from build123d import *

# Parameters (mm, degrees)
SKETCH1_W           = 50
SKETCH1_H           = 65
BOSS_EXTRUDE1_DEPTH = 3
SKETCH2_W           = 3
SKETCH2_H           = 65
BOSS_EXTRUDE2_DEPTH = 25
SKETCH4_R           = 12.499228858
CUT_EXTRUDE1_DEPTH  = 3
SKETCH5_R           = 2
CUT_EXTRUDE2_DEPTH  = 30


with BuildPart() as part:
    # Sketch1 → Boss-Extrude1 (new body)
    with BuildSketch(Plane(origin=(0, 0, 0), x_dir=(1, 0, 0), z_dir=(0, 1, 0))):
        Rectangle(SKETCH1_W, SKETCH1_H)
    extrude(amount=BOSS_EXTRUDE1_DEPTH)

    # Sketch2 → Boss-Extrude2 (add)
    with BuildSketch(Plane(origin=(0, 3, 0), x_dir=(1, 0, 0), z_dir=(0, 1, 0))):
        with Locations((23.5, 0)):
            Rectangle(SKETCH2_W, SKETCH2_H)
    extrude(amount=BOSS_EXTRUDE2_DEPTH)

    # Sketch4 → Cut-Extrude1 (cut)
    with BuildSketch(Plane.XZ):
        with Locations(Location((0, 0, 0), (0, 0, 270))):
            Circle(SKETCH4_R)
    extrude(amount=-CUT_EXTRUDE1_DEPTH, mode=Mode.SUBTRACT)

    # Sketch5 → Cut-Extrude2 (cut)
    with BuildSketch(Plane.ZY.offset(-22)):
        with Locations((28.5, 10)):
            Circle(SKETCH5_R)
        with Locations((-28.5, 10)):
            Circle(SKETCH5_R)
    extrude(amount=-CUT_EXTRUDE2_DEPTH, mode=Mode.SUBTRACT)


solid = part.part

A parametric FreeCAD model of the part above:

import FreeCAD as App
import Part
import Sketcher

V = App.Vector
Q = App.Units.Quantity

doc = App.newDocument("Part")
body = doc.addObject("PartDesign::Body", "Body")

sketch1 = body.newObject("Sketcher::SketchObject", "Sketch")
sketch1.AttachmentSupport = (doc.getObject("XZ_Plane"), [""])
sketch1.MapMode = "FlatFace"
sketch1.addGeometry([
    Part.LineSegment(V(-25, -32, 0), V(-25, 32, 0)),
    Part.LineSegment(V(-25, 32, 0), V(25, 32, 0)),
    Part.LineSegment(V(25, 32, 0), V(25, -32, 0)),
    Part.LineSegment(V(25, -32, 0), V(-25, -32, 0)),
], False)
sketch1.addConstraint([
    Sketcher.Constraint("Coincident", 0, 2, 1, 1),
    Sketcher.Constraint("Coincident", 1, 2, 2, 1),
    Sketcher.Constraint("Coincident", 2, 2, 3, 1),
    Sketcher.Constraint("Coincident", 3, 2, 0, 1),
    Sketcher.Constraint("Vertical", 0),
    Sketcher.Constraint("Horizontal", 1),
    Sketcher.Constraint("Vertical", 2),
    Sketcher.Constraint("Horizontal", 3),
    Sketcher.Constraint("Symmetric", 0, 2, 2, 2, -1, 1),
    Sketcher.Constraint("DistanceX", 1, 1, 1, 2, Q("50 mm")),
    Sketcher.Constraint("DistanceY", 0, 1, 0, 2, Q("65 mm")),
])
pad1 = body.newObject("PartDesign::Pad", "Pad")
pad1.Profile = sketch1
pad1.Length = 3
pad1.Reversed = True

sketch2 = body.newObject("Sketcher::SketchObject", "Sketch001")
sketch2.AttachmentSupport = (doc.getObject("XZ_Plane"), [""])
sketch2.MapMode = "FlatFace"
sketch2.AttachmentOffset = App.Placement(V(0, 0, -3), App.Rotation())
sketch2.addGeometry([
    Part.LineSegment(V(22, -32.5, 0), V(22, 32.5, 0)),
    Part.LineSegment(V(22, 32.5, 0), V(25, 32.5, 0)),
    Part.LineSegment(V(25, 32.5, 0), V(25, -32.5, 0)),
    Part.LineSegment(V(25, -32.5, 0), V(22, -32.5, 0)),
], False)
sketch2.addConstraint([
    Sketcher.Constraint("Coincident", 0, 2, 1, 1),
    Sketcher.Constraint("Coincident", 1, 2, 2, 1),
    Sketcher.Constraint("Coincident", 2, 2, 3, 1),
    Sketcher.Constraint("Coincident", 3, 2, 0, 1),
    Sketcher.Constraint("Vertical", 0),
    Sketcher.Constraint("Horizontal", 1),
    Sketcher.Constraint("Vertical", 2),
    Sketcher.Constraint("Horizontal", 3),
    Sketcher.Constraint("DistanceX", 1, 1, 1, 2, Q("3 mm")),
    Sketcher.Constraint("DistanceY", 0, 1, 0, 2, Q("65 mm")),
    Sketcher.Constraint("DistanceX", -1, 1, 0, 2, Q("22 mm")),
    Sketcher.Constraint("DistanceY", -1, 1, 0, 2, Q("32.5 mm")),
])
pad2 = body.newObject("PartDesign::Pad", "Pad001")
pad2.Profile = sketch2
pad2.Length = 25
pad2.Reversed = True

sketch3 = body.newObject("Sketcher::SketchObject", "Sketch002")
sketch3.AttachmentSupport = (doc.getObject("XZ_Plane"), [""])
sketch3.MapMode = "FlatFace"
sketch3.addGeometry(Part.Circle(V(0, 0, 0), V(0, 0, 1), 12), False)
sketch3.addConstraint([
    Sketcher.Constraint("Coincident", 0, 3, -1, 1),
    Sketcher.Constraint("Diameter", 0, Q("24.998458 mm")),
])
pocket1 = body.newObject("PartDesign::Pocket", "Pocket")
pocket1.Profile = sketch3
pocket1.Length = 3

sketch4 = body.newObject("Sketcher::SketchObject", "Sketch003")
sketch4.AttachmentSupport = (doc.getObject("YZ_Plane"), [""])
sketch4.MapMode = "FlatFace"
sketch4.AttachmentOffset = App.Placement(V(0, 0, 22), App.Rotation())
sketch4.addGeometry([
    Part.Circle(V(10, 28.5, 0), V(0, 0, 1), 2),
    Part.Circle(V(10, -28.5, 0), V(0, 0, 1), 2),
], False)
sketch4.addConstraint([
    Sketcher.Constraint("Equal", 0, 1),
    Sketcher.Constraint("Symmetric", 0, 3, 1, 3, -1),
    Sketcher.Constraint("Diameter", 0, Q("4 mm")),
    Sketcher.Constraint("DistanceX", -1, 1, 0, 3, Q("10 mm")),
    Sketcher.Constraint("DistanceY", 1, 3, 0, 3, Q("57 mm")),
])
pocket2 = body.newObject("PartDesign::Pocket", "Pocket001")
pocket2.Profile = sketch4
pocket2.Length = 30
pocket2.Reversed = True

doc.recompute()
